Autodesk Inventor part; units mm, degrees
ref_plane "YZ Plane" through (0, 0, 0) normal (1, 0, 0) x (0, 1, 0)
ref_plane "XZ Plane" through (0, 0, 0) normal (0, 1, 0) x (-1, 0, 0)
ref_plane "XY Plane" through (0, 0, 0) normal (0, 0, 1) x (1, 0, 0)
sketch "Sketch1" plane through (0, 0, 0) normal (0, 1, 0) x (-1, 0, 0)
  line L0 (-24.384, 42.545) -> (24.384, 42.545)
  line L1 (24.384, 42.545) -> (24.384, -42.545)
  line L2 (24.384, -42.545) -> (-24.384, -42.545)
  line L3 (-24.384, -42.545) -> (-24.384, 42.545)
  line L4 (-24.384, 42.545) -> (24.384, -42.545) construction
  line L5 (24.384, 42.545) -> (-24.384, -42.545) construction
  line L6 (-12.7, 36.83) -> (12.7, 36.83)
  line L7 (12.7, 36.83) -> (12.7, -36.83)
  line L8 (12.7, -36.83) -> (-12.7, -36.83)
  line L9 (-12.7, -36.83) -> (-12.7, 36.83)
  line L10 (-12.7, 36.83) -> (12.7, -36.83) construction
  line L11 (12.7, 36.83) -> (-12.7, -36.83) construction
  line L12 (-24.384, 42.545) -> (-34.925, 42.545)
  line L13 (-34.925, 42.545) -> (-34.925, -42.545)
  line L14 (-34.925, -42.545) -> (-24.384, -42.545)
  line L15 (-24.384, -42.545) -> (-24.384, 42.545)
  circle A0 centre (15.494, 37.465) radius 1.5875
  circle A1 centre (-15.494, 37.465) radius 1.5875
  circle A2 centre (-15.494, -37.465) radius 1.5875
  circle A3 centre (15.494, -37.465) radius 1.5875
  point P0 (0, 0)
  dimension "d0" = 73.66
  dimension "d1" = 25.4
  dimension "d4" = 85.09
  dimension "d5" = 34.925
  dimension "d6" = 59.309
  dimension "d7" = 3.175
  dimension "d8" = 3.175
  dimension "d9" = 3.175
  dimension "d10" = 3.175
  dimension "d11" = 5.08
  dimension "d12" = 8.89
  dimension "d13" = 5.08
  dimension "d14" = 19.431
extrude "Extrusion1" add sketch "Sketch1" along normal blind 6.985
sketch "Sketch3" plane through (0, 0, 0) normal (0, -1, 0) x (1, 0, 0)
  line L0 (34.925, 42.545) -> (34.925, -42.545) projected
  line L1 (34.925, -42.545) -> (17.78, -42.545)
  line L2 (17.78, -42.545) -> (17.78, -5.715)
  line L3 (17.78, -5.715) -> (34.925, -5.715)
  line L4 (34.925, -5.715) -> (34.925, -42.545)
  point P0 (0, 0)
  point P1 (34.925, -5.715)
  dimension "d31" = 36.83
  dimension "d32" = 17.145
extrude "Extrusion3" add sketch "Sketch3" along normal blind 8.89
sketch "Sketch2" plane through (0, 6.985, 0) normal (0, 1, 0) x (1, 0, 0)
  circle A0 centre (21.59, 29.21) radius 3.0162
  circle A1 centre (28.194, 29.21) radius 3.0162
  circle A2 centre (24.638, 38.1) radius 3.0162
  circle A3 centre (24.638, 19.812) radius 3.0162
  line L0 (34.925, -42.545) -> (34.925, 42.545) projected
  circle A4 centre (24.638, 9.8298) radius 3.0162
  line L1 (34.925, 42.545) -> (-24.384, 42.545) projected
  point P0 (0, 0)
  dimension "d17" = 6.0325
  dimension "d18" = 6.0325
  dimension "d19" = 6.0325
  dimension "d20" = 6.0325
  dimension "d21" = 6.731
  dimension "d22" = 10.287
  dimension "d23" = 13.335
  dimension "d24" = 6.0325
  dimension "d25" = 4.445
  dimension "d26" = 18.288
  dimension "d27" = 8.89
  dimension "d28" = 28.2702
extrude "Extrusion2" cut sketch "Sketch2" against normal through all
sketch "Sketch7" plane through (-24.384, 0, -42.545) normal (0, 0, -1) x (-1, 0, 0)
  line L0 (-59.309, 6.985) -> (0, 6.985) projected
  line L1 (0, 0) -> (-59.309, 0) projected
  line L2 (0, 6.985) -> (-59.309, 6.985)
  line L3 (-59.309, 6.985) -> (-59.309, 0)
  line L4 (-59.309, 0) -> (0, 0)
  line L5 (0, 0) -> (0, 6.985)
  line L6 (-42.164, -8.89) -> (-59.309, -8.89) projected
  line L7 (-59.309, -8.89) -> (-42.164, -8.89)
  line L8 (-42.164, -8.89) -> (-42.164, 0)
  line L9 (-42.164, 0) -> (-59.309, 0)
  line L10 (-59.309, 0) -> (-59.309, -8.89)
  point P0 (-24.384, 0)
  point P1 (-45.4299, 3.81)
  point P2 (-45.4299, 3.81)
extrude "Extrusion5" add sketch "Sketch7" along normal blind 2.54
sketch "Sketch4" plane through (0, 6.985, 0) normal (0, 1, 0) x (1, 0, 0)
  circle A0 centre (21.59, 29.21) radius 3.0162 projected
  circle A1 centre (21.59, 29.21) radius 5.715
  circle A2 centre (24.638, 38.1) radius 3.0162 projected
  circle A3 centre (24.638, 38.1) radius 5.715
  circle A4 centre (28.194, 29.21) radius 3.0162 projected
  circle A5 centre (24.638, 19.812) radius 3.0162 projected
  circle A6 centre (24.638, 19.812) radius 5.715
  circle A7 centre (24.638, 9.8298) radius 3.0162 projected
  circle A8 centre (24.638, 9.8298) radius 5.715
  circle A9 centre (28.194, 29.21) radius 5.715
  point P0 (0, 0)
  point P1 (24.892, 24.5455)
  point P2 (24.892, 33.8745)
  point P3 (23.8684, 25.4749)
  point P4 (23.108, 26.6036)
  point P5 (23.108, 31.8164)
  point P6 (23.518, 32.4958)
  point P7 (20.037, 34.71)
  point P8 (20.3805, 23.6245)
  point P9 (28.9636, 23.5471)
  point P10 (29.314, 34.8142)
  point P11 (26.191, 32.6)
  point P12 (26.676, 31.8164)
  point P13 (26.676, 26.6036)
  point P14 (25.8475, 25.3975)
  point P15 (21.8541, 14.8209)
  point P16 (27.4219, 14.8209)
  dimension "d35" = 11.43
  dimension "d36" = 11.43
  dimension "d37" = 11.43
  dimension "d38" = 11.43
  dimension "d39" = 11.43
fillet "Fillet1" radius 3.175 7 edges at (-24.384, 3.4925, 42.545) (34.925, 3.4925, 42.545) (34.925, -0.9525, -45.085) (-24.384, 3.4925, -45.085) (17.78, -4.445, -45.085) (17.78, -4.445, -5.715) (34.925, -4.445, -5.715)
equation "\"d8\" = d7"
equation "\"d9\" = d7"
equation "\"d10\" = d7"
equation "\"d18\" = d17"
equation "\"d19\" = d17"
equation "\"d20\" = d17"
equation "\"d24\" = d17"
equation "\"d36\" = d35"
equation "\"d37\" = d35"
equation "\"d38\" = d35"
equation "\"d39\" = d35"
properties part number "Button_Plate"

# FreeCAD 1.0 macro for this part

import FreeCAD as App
import Part
import Sketcher
Q = App.Units.Quantity


def edges_at(feature, points):
    """Names of the edges that pass closest to the given points."""
    edges = feature.Shape.Edges
    near = lambda p: min(range(len(edges)), key=lambda i: edges[i].distToShape(Part.Vertex(*p))[0])
    return sorted({f"Edge{near(p) + 1}" for p in points})


def add_polygon(sketch, points):
    """Adds a closed chain of lines whose ends are joined by coincident constraints."""
    first, n = sketch.GeometryCount, len(points)
    for a, b in zip(points, points[1:] + points[:1]):
        sketch.addGeometry(Part.LineSegment(App.Vector(*a, 0), App.Vector(*b, 0)), False)
    for i in range(n):
        sketch.addConstraint(Sketcher.Constraint("Coincident", first + i, 2, first + (i + 1) % n, 1))

doc = App.newDocument("Part")
body = doc.addObject("PartDesign::Body", "Body")

# Sketch on XZ plane
sketch1 = body.newObject("Sketcher::SketchObject", "Sketch")
sketch1.AttachmentSupport = (doc.getObject("XZ_Plane"), [""])
sketch1.MapMode = "FlatFace"
add_polygon(sketch1, [(-24.4, 42.5), (34.9, 42.5), (34.9, -42.5), (-24.4, -42.5)])  # lines 0-3
sketch1.addGeometry(Part.Circle(App.Vector(15.5, -37.5, 0), App.Vector(0, 0, 1), 1.6), False)  # 4
sketch1.addGeometry(Part.Circle(App.Vector(-15.5, -37.5, 0), App.Vector(0, 0, 1), 1.6), False)  # 5
sketch1.addGeometry(Part.Circle(App.Vector(15.5, 37.5, 0), App.Vector(0, 0, 1), 1.6), False)  # 6
add_polygon(sketch1, [(12.7, -36.8), (12.7, 36.8), (-12.7, 36.8), (-12.7, -36.8)])  # lines 7-10
sketch1.addGeometry(Part.Circle(App.Vector(-15.5, 37.5, 0), App.Vector(0, 0, 1), 1.6), False)  # 11
sketch1.addConstraint([
    Sketcher.Constraint("Horizontal", 0),
    Sketcher.Constraint("Vertical", 1),
    Sketcher.Constraint("Horizontal", 2),
    Sketcher.Constraint("Vertical", 3),
    Sketcher.Constraint("Vertical", 7),
    Sketcher.Constraint("Horizontal", 8),
    Sketcher.Constraint("Vertical", 9),
    Sketcher.Constraint("Horizontal", 10),
    Sketcher.Constraint("Equal", 4, 5),
    Sketcher.Constraint("Equal", 5, 6),
    Sketcher.Constraint("Equal", 6, 11),
    Sketcher.Constraint("Symmetric", 5, 3, 6, 3, -1, 1),
    Sketcher.Constraint("Symmetric", 4, 3, 11, 3, -1, 1),
    Sketcher.Constraint("Symmetric", 7, 2, 9, 2, -1, 1),
    Sketcher.Constraint("Symmetric", 4, 3, 5, 3, -2),
    Sketcher.Constraint("DistanceX", 8, 2, 8, 1, Q("1 in")),
    Sketcher.Constraint("Diameter", 4, Q("0.125 in")),
    Sketcher.Constraint("DistanceY", 7, 1, 7, 2, Q("2.9 in")),
    Sketcher.Constraint("DistanceY", 1, 2, 1, 1, Q("3.35 in")),
    Sketcher.Constraint("DistanceY", 6, 3, 0, 2, Q("0.2 in")),
    Sketcher.Constraint("DistanceY", 1, 2, 4, 3, Q("0.2 in")),
    Sketcher.Constraint("DistanceX", 0, 1, 0, 2, Q("2.335 in")),
    Sketcher.Constraint("DistanceX", 2, 2, 5, 3, Q("0.35 in")),
    Sketcher.Constraint("DistanceX", -1, 1, 0, 2, Q("1.375 in")),
])
pad1 = body.newObject("PartDesign::Pad", "Pad")
pad1.Profile = sketch1
pad1.Length = Q("0.275 in")
pad1.Reversed = True

# Sketch on XZ plane
sketch2 = body.newObject("Sketcher::SketchObject", "Sketch001")
sketch2.AttachmentSupport = (doc.getObject("XZ_Plane"), [""])
sketch2.MapMode = "FlatFace"
add_polygon(sketch2, [(35, -43), (35, -6), (18, -6), (18, -43)])  # lines 0-3
sketch2.addConstraint([
    Sketcher.Constraint("Vertical", 0),
    Sketcher.Constraint("Horizontal", 1),
    Sketcher.Constraint("Vertical", 2),
    Sketcher.Constraint("Horizontal", 3),
    Sketcher.Constraint("DistanceY", 0, 1, 0, 2, Q("1.45 in")),
    Sketcher.Constraint("DistanceX", 1, 2, 1, 1, Q("0.675 in")),
    Sketcher.Constraint("DistanceX", -1, 1, 1, 2, Q("0.7 in")),
    Sketcher.Constraint("DistanceY", 0, 2, -1, 1, Q("0.225 in")),
])
pad2 = body.newObject("PartDesign::Pad", "Pad001")
pad2.Profile = sketch2
pad2.Length = Q("0.35 in")

# Sketch on XZ plane
sketch3 = body.newObject("Sketcher::SketchObject", "Sketch002")
sketch3.AttachmentSupport = (doc.getObject("XZ_Plane"), [""])
sketch3.MapMode = "FlatFace"
sketch3.AttachmentOffset = App.Placement(App.Vector(0, 0, -0.275 * 25.4), App.Rotation())
sketch3.addGeometry([
    Part.Circle(App.Vector(21.6, -29.2, 0), App.Vector(0, 0, 1), 3),  # 0
    Part.Circle(App.Vector(28.2, -29.2, 0), App.Vector(0, 0, 1), 3),  # 1
    Part.Circle(App.Vector(24.6, -38.1, 0), App.Vector(0, 0, 1), 3),  # 2
    Part.Circle(App.Vector(24.6, -19.8, 0), App.Vector(0, 0, 1), 3),  # 3
    Part.Circle(App.Vector(24.6, -9.8, 0), App.Vector(0, 0, 1), 3),  # 4
], False)
sketch3.addConstraint([
    Sketcher.Constraint("Equal", 0, 1),
    Sketcher.Constraint("Equal", 1, 2),
    Sketcher.Constraint("Equal", 2, 3),
    Sketcher.Constraint("Equal", 3, 4),
    Sketcher.Constraint("Horizontal", 0, 3, 1, 3),
    Sketcher.Constraint("Vertical", 2, 3, 3, 3),
    Sketcher.Constraint("Vertical", 3, 3, 4, 3),
    Sketcher.Constraint("Diameter", 0, Q("0.2375 in")),
    Sketcher.Constraint("DistanceY", 2, 3, 0, 3, Q("0.35 in")),
    Sketcher.Constraint("DistanceY", 2, 3, 3, 3, Q("0.72 in")),
    Sketcher.Constraint("DistanceY", 2, 3, 4, 3, Q("1.113 in")),
    Sketcher.Constraint("DistanceY", 2, 3, -1, 1, Q("1.5 in")),
    Sketcher.Constraint("DistanceX", -1, 1, 0, 3, Q("0.85 in")),
    Sketcher.Constraint("DistanceX", -1, 1, 1, 3, Q("1.11 in")),
    Sketcher.Constraint("DistanceX", -1, 1, 2, 3, Q("0.97 in")),
])
pocket1 = body.newObject("PartDesign::Pocket", "Pocket")
pocket1.Profile = sketch3
pocket1.Type = "ThroughAll"
pocket1.Reversed = True

# Sketch on XY plane
sketch4 = body.newObject("Sketcher::SketchObject", "Sketch003")
sketch4.AttachmentSupport = (doc.getObject("XY_Plane"), [""])
sketch4.MapMode = "FlatFace"
sketch4.AttachmentOffset = App.Placement(App.Vector(0, 0, -1.675 * 25.4), App.Rotation())
add_polygon(sketch4, [(-24, 7), (35, 7), (35, -9), (18, -9), (18, 0), (-24, 0)])  # lines 0-5
sketch4.addConstraint([
    Sketcher.Constraint("Horizontal", 0),
    Sketcher.Constraint("Vertical", 1),
    Sketcher.Constraint("Horizontal", 2),
    Sketcher.Constraint("Vertical", 3),
    Sketcher.Constraint("Horizontal", 4),
    Sketcher.Constraint("Vertical", 5),
    Sketcher.Constraint("PointOnObject", 3, 2, -1),
    Sketcher.Constraint("DistanceX", 4, 2, 4, 1, Q("1.66 in")),
    Sketcher.Constraint("DistanceY", 3, 1, 3, 2, Q("0.35 in")),
    Sketcher.Constraint("DistanceX", -1, 1, 2, 2, Q("0.7 in")),
    Sketcher.Constraint("DistanceX", 0, 1, 0, 2, Q("2.335 in")),
    Sketcher.Constraint("DistanceY", 1, 2, 1, 1, Q("0.625 in")),
])
pad3 = body.newObject("PartDesign::Pad", "Pad002")
pad3.Profile = sketch4
pad3.Length = Q("0.1 in")
pad3.Reversed = True
doc.recompute()

fillet = body.newObject("PartDesign::Fillet", "Fillet")
fillet.Base = (pad3, edges_at(pad3, [
    (-24.384, 3.493, 42.545),
    (34.925, 3.493, 42.545),
    (34.925, -0.953, -45.085),
    (-24.384, 3.493, -45.085),
    (17.78, -4.445, -45.085),
    (17.78, -4.445, -5.715),
    (34.925, -4.445, -5.715),
]))
fillet.Radius = Q("0.125 in")

doc.recompute()
